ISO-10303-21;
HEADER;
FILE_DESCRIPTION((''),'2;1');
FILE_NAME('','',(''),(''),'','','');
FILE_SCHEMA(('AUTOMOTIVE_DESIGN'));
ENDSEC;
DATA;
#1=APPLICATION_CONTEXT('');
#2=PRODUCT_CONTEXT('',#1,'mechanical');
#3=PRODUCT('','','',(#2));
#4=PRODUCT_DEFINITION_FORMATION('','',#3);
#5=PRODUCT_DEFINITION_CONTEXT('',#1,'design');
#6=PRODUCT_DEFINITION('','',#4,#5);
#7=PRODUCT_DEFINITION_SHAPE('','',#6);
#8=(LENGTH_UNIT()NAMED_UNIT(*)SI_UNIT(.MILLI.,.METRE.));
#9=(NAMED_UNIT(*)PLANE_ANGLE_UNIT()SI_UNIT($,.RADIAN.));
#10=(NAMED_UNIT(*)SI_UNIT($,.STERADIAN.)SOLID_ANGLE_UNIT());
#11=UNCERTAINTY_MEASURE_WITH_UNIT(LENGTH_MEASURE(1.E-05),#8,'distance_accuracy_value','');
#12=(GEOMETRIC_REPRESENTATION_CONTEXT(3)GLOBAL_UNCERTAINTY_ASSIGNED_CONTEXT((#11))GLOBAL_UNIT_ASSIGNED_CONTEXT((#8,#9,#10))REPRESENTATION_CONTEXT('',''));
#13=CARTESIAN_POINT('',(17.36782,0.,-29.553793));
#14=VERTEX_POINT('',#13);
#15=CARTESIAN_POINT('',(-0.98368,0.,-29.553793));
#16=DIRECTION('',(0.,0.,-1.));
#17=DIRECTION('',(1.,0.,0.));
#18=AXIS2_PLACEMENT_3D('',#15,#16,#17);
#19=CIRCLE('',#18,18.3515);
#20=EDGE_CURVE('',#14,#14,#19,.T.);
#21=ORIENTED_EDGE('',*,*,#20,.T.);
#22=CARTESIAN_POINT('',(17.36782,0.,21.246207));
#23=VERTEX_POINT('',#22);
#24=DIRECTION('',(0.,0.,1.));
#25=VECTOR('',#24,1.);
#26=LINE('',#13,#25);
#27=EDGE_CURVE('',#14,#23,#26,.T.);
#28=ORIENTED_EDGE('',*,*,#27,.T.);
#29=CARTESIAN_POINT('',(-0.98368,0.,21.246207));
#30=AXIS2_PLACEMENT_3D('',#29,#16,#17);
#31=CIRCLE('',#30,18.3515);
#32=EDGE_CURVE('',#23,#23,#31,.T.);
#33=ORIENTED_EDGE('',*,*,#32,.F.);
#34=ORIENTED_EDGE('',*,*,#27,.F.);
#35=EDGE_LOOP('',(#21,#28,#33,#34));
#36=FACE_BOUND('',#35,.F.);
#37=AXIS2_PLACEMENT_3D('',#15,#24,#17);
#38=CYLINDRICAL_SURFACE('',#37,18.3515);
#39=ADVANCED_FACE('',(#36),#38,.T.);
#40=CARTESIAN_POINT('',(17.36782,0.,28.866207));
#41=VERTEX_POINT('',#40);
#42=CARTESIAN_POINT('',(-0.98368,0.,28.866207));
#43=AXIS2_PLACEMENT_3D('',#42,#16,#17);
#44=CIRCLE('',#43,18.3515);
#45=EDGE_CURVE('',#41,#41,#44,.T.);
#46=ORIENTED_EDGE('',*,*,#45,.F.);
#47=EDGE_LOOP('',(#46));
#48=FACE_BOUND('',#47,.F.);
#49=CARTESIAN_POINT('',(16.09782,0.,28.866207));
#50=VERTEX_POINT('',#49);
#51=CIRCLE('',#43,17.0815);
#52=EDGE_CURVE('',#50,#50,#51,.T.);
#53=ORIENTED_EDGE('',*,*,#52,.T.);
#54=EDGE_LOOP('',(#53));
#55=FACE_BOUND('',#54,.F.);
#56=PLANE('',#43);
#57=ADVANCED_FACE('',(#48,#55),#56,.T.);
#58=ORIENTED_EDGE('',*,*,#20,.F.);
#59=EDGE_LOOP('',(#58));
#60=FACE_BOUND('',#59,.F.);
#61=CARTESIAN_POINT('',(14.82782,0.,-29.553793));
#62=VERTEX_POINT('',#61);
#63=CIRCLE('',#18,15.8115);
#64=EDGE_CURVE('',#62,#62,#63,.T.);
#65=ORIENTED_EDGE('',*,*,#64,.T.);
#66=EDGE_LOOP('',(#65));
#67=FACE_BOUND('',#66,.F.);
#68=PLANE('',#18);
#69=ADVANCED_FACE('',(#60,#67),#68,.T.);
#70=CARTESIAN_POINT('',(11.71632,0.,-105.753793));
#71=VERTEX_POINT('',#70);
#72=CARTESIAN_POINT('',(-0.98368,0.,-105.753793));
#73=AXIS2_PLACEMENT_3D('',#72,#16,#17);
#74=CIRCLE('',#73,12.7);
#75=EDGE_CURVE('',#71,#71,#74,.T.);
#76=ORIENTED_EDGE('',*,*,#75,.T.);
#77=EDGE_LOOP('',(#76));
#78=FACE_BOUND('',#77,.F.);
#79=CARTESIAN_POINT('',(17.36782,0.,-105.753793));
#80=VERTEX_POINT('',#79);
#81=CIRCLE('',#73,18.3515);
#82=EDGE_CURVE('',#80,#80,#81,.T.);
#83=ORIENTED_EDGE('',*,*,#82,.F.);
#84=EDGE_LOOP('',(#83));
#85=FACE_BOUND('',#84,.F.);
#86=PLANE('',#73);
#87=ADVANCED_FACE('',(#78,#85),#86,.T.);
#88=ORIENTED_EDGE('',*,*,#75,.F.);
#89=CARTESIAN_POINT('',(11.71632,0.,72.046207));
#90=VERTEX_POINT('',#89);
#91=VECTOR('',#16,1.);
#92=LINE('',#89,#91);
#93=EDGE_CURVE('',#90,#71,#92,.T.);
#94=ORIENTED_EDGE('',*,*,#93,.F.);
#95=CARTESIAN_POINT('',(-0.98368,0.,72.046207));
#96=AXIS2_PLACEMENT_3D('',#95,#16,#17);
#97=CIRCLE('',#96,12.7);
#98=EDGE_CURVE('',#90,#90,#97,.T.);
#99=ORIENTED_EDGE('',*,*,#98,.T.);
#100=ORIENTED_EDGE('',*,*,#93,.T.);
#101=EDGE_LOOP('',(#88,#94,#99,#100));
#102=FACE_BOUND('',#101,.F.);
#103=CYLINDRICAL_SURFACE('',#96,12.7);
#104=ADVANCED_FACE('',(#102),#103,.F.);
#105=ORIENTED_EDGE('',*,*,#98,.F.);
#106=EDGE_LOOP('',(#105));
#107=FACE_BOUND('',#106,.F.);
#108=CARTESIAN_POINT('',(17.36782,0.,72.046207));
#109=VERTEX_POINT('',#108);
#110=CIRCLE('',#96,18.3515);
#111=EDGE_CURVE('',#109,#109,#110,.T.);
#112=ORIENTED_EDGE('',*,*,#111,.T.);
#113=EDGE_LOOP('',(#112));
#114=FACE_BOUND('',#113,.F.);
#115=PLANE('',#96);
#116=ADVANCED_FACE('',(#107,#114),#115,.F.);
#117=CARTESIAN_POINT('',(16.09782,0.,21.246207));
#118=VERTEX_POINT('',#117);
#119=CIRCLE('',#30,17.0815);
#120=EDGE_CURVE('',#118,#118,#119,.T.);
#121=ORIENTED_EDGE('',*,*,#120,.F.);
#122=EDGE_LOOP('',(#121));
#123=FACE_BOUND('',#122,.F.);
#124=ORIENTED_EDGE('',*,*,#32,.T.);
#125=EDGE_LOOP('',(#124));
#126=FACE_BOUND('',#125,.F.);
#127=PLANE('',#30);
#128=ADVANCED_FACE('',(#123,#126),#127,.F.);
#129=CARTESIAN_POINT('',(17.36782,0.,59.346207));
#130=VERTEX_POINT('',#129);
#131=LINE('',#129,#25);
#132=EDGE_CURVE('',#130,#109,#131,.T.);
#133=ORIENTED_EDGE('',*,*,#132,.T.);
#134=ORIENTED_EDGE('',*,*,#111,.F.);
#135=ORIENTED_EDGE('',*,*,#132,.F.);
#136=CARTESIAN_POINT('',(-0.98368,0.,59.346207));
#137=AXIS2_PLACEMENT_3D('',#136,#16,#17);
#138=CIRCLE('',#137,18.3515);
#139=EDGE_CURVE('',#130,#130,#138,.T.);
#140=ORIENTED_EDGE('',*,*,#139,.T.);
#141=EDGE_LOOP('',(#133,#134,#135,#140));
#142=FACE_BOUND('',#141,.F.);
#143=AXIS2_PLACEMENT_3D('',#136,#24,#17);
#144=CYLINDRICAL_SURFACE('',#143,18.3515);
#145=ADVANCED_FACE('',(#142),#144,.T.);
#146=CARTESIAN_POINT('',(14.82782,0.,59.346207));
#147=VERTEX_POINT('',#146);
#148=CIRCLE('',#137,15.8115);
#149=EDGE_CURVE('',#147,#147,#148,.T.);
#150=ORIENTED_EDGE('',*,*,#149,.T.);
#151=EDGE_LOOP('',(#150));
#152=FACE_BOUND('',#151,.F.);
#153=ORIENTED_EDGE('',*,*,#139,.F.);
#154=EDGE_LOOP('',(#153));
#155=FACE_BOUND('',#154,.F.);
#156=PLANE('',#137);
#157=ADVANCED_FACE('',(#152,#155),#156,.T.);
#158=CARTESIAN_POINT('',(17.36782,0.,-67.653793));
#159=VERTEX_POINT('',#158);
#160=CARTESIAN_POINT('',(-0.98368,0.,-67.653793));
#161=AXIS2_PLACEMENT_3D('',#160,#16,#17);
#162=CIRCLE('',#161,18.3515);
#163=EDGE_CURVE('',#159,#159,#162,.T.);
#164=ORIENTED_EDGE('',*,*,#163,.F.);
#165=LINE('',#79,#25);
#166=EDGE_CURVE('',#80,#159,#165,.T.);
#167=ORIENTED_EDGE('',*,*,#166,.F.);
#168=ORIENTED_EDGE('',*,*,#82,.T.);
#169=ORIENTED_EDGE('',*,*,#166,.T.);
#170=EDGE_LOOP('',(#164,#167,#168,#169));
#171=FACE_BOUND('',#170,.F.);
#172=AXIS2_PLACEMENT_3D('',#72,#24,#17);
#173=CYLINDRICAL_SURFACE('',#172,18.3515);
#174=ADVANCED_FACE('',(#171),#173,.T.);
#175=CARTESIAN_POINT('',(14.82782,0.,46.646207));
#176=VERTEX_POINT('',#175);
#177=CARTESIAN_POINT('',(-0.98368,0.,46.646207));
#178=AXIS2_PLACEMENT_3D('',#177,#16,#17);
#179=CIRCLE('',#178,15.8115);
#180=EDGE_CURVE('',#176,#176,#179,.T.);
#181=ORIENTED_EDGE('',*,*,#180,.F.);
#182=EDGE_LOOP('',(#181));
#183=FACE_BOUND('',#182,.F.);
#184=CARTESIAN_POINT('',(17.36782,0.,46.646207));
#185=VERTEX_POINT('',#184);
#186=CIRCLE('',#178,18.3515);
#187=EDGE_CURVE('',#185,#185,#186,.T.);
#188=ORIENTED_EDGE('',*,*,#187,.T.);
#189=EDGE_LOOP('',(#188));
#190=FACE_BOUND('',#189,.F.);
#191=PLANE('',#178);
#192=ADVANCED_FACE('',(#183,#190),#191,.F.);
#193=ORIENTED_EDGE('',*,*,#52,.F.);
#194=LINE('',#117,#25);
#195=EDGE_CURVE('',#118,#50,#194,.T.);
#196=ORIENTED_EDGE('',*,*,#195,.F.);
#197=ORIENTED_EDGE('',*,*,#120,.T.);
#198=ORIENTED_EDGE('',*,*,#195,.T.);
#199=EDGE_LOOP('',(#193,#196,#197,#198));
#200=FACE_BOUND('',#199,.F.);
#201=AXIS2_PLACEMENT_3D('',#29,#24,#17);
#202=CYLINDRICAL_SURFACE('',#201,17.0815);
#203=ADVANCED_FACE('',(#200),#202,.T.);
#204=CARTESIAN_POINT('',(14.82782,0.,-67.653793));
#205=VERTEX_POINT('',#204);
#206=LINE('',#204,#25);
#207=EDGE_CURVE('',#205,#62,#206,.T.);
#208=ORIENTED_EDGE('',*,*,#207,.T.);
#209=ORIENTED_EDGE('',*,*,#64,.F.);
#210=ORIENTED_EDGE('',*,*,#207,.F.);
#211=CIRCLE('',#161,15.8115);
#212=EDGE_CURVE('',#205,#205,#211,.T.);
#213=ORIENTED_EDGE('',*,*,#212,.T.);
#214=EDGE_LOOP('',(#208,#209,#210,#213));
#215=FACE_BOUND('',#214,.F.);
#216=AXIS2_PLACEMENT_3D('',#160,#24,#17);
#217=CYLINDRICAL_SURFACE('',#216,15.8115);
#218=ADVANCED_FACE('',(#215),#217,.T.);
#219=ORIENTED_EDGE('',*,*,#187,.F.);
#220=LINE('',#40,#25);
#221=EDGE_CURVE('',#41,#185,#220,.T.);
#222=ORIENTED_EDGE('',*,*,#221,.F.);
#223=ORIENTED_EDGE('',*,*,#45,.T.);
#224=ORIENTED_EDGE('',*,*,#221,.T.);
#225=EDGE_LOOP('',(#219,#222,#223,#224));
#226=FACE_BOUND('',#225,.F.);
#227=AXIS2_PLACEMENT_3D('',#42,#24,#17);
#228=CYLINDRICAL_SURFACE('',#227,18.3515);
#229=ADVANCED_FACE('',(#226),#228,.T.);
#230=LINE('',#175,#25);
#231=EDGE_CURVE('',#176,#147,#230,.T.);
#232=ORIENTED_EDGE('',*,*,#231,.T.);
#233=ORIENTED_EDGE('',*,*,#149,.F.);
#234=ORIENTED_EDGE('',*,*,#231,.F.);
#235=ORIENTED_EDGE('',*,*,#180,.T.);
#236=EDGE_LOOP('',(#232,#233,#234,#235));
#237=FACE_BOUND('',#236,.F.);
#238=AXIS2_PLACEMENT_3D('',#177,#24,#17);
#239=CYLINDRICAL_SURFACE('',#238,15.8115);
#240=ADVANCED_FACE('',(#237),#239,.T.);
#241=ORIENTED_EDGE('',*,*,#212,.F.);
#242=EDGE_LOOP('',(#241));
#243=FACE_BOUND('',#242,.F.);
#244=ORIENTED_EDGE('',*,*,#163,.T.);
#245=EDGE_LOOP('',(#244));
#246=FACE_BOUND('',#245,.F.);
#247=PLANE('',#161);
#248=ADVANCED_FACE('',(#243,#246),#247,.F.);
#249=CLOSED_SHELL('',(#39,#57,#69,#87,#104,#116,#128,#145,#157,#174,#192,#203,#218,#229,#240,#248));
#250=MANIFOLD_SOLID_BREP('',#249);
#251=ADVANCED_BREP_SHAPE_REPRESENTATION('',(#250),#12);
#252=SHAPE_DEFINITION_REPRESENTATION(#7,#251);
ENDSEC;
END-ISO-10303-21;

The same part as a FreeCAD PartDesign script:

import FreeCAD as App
import Part
import Sketcher
Q = App.Units.Quantity


def add_polygon(sketch, points):
    """Adds a closed chain of lines whose ends are joined by coincident constraints."""
    first, n = sketch.GeometryCount, len(points)
    for a, b in zip(points, points[1:] + points[:1]):
        sketch.addGeometry(Part.LineSegment(App.Vector(*a, 0), App.Vector(*b, 0)), False)
    for i in range(n):
        sketch.addConstraint(Sketcher.Constraint("Coincident", first + i, 2, first + (i + 1) % n, 1))

doc = App.newDocument("Part")
body = doc.addObject("PartDesign::Body", "Body")

# Sketch on XZ plane
sketch1 = body.newObject("Sketcher::SketchObject", "Sketch")
sketch1.AttachmentSupport = (doc.getObject("XZ_Plane"), [""])
sketch1.MapMode = "FlatFace"
add_polygon(sketch1, [(17.36782, 59.346207), (17.36782, 72.046207), (11.71632, 72.046207), (11.71632, -105.753793), (17.36782, -105.753793), (17.36782, -67.653793), (14.82782, -67.653793), (14.82782, -29.553793), (17.36782, -29.553793), (17.36782, 21.246207), (16.09782, 21.246207), (16.09782, 28.866207), (17.36782, 28.866207), (17.36782, 46.646207), (14.82782, 46.646207), (14.82782, 59.346207)])  # lines 0-15
sketch1.addGeometry(Part.LineSegment(App.Vector(-0.98368, 72.046207, 0), App.Vector(-0.98368, -105.753793, 0)), True)  # axis
sketch1.addConstraint([
    Sketcher.Constraint("Vertical", 0),
    Sketcher.Constraint("Horizontal", 1),
    Sketcher.Constraint("Vertical", 2),
    Sketcher.Constraint("Horizontal", 3),
    Sketcher.Constraint("Vertical", 4),
    Sketcher.Constraint("Horizontal", 5),
    Sketcher.Constraint("Vertical", 6),
    Sketcher.Constraint("Horizontal", 7),
    Sketcher.Constraint("Vertical", 8),
    Sketcher.Constraint("Horizontal", 9),
    Sketcher.Constraint("Vertical", 10),
    Sketcher.Constraint("Horizontal", 11),
    Sketcher.Constraint("Vertical", 12),
    Sketcher.Constraint("Horizontal", 13),
    Sketcher.Constraint("Vertical", 14),
    Sketcher.Constraint("Horizontal", 15),
    Sketcher.Constraint("Vertical", 16),
    Sketcher.Constraint("Horizontal", 1, 2, 16, 1),
    Sketcher.Constraint("Horizontal", 3, 2, 16, 2),
    Sketcher.Constraint("Vertical", 0, 2, 3, 2),
    Sketcher.Constraint("Vertical", 4, 2, 7, 2),
    Sketcher.Constraint("Vertical", 8, 2, 11, 2),
    Sketcher.Constraint("Vertical", 6, 2, 13, 2),
    Sketcher.Constraint("Equal", 4, 6),
    Sketcher.Constraint("Equal", 0, 14),
    Sketcher.Constraint("DistanceY", 2, 2, 2, 1, Q("7 in")),
    Sketcher.Constraint("DistanceY", 8, 1, 8, 2, Q("2 in")),
    Sketcher.Constraint("DistanceX", 5, 2, 5, 1, Q("0.1 in")),
    Sketcher.Constraint("DistanceY", 0, 1, 0, 2, Q("0.5 in")),
    Sketcher.Constraint("DistanceY", 4, 1, 4, 2, Q("1.5 in")),
    Sketcher.Constraint("DistanceY", 10, 1, 10, 2, Q("0.3 in")),
    Sketcher.Constraint("DistanceX", 9, 2, 9, 1, Q("0.05 in")),
    Sketcher.Constraint("DistanceX", 16, 1, 1, 2, Q("0.5 in")),
    Sketcher.Constraint("DistanceX", 1, 2, 1, 1, Q("0.2225 in")),
    Sketcher.Constraint("DistanceX", -1, 1, 0, 2, 17.36782),
    Sketcher.Constraint("DistanceY", -1, 1, 0, 2, 72.046207),
])
revolution = body.newObject("PartDesign::Revolution", "Revolution")
revolution.Profile = sketch1
revolution.ReferenceAxis = (sketch1, ["Axis0"])
revolution.Angle = 360

doc.recompute()
